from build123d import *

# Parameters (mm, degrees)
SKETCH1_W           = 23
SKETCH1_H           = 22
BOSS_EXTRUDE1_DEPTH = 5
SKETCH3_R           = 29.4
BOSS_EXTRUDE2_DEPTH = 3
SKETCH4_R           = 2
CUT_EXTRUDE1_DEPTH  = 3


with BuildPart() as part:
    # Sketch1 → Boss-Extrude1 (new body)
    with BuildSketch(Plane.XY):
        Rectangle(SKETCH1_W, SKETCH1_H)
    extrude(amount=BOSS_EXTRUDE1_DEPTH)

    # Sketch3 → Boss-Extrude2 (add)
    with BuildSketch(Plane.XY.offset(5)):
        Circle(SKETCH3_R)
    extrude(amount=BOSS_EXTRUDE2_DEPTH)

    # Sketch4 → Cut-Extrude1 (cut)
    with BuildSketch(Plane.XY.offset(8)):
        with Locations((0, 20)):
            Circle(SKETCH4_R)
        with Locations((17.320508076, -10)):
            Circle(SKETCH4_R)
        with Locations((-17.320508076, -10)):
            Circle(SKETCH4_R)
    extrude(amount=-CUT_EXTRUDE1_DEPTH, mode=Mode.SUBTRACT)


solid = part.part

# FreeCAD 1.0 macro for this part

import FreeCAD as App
import Part
import Sketcher


def add_polygon(sketch, points):
    """Adds a closed chain of lines whose ends are joined by coincident constraints."""
    first, n = sketch.GeometryCount, len(points)
    for a, b in zip(points, points[1:] + points[:1]):
        sketch.addGeometry(Part.LineSegment(App.Vector(*a, 0), App.Vector(*b, 0)), False)
    for i in range(n):
        sketch.addConstraint(Sketcher.Constraint("Coincident", first + i, 2, first + (i + 1) % n, 1))

doc = App.newDocument("Part")
params = doc.addObject("Spreadsheet::Sheet", "Params")
for row, (alias, value) in enumerate([
    ("sketch1_width", "23 mm"),
    ("sketch1_height", "22 mm"),
    ("pad1_length", "5 mm"),
    ("sketch2_diameter", "58.8 mm"),
    ("pad2_length", "3 mm"),
    ("sketch3_diameter", "4 mm"),
    ("pocket1_length", "3 mm"),
], start=1):
    params.set(f"A{row}", alias)
    params.set(f"B{row}", "=" + value)
    params.setAlias(f"B{row}", alias)

body = doc.addObject("PartDesign::Body", "Body")

# Sketch on XY plane
sketch1 = body.newObject("Sketcher::SketchObject", "Sketch")
sketch1.AttachmentSupport = (doc.getObject("XY_Plane"), [""])
sketch1.MapMode = "FlatFace"
add_polygon(sketch1, [(-12, 11), (-12, -11), (12, -11), (12, 11)])  # lines 0-3
sketch1.addConstraint([
    Sketcher.Constraint("Vertical", 0),
    Sketcher.Constraint("Horizontal", 1),
    Sketcher.Constraint("Vertical", 2),
    Sketcher.Constraint("Horizontal", 3),
    Sketcher.Constraint("Symmetric", 0, 2, 2, 2, -1, 1),
    Sketcher.Constraint("DistanceX", 1, 1, 1, 2, 23.0),
    Sketcher.Constraint("DistanceY", 0, 2, 0, 1, 22.0),
])
sketch1.setExpression("Constraints[9]", "Params.sketch1_width")
sketch1.setExpression("Constraints[10]", "Params.sketch1_height")
pad1 = body.newObject("PartDesign::Pad", "Pad")
pad1.Profile = sketch1
pad1.setExpression("Length", "Params.pad1_length")

# Sketch on XY plane
sketch2 = body.newObject("Sketcher::SketchObject", "Sketch001")
sketch2.AttachmentSupport = (doc.getObject("XY_Plane"), [""])
sketch2.MapMode = "FlatFace"
sketch2.AttachmentOffset = App.Placement(App.Vector(0, 0, 5), App.Rotation())
sketch2.addGeometry(Part.Circle(App.Vector(0, 0, 0), App.Vector(0, 0, 1), 29), False)
sketch2.addConstraint([
    Sketcher.Constraint("Coincident", 0, 3, -1, 1),
    Sketcher.Constraint("Diameter", 0, 58.8),
])
sketch2.setExpression("Constraints[1]", "Params.sketch2_diameter")
pad2 = body.newObject("PartDesign::Pad", "Pad001")
pad2.Profile = sketch2
pad2.setExpression("Length", "Params.pad2_length")

# Sketch on XY plane
sketch3 = body.newObject("Sketcher::SketchObject", "Sketch002")
sketch3.AttachmentSupport = (doc.getObject("XY_Plane"), [""])
sketch3.MapMode = "FlatFace"
sketch3.AttachmentOffset = App.Placement(App.Vector(0, 0, 8), App.Rotation())
sketch3.addGeometry([
    Part.Circle(App.Vector(0, 20, 0), App.Vector(0, 0, 1), 2),
    Part.Circle(App.Vector(17.3, -10, 0), App.Vector(0, 0, 1), 2),
    Part.Circle(App.Vector(-17.3, -10, 0), App.Vector(0, 0, 1), 2),
], False)
sketch3.addConstraint([
    Sketcher.Constraint("Equal", 0, 1),
    Sketcher.Constraint("Equal", 1, 2),
    Sketcher.Constraint("Symmetric", 1, 3, 2, 3, -2),
    Sketcher.Constraint("PointOnObject", 0, 3, -2),
    Sketcher.Constraint("Diameter", 0, 4.0),
    Sketcher.Constraint("DistanceY", -1, 1, 0, 3, 20.0),
    Sketcher.Constraint("DistanceY", 1, 3, -1, 1, 10.0),
    Sketcher.Constraint("DistanceX", -1, 1, 1, 3, 17.320508),
])
sketch3.setExpression("Constraints[4]", "Params.sketch3_diameter")
pocket1 = body.newObject("PartDesign::Pocket", "Pocket")
pocket1.Profile = sketch3
pocket1.setExpression("Length", "Params.pocket1_length")

doc.recompute()
